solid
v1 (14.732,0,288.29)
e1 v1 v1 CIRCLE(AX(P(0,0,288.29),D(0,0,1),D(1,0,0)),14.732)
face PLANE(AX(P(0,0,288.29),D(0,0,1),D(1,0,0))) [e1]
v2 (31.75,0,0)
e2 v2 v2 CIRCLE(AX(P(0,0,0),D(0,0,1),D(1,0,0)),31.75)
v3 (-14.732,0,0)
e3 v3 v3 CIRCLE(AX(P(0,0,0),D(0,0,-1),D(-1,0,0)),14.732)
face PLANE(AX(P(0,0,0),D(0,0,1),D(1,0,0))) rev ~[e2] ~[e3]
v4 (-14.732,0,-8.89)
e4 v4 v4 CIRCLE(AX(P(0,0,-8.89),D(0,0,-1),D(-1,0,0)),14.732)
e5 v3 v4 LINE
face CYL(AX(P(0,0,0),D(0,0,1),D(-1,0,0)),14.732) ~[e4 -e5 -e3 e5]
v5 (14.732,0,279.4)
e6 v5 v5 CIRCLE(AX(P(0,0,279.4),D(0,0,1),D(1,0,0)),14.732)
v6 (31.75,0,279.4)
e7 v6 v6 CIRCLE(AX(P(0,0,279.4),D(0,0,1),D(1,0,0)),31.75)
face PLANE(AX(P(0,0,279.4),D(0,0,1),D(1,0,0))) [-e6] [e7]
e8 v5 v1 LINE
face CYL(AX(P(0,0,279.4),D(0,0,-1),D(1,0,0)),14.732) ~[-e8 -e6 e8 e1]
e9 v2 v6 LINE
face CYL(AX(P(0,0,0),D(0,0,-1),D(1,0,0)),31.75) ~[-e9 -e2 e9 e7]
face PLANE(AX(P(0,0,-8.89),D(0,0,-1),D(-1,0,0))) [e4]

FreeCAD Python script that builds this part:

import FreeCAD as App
import Part
import Sketcher

V = App.Vector
Q = App.Units.Quantity

doc = App.newDocument("Part")
params = doc.addObject("Spreadsheet::Sheet", "Params")
for row, (alias, value) in enumerate([
    ("sketch1_diameter", "2.5 in"),
    ("pad1_length", "11 in"),
    ("sketch2_diameter", "1.16 in"),
    ("pad2_length", "0.35 in"),
    ("sketch3_diameter", "1.16 in"),
    ("pad3_length", "0.35 in"),
], start=1):
    params.set(f"A{row}", alias)
    params.set(f"B{row}", "=" + value)
    params.setAlias(f"B{row}", alias)

body = doc.addObject("PartDesign::Body", "Body")

sketch1 = body.newObject("Sketcher::SketchObject", "Sketch")
sketch1.AttachmentSupport = (doc.getObject("XY_Plane"), [""])
sketch1.MapMode = "FlatFace"
sketch1.addGeometry(Part.Circle(V(0, 0, 0), V(0, 0, 1), 31.75), False)
sketch1.addConstraint([
    Sketcher.Constraint("Coincident", 0, 3, -1, 1),
    Sketcher.Constraint("Diameter", 0, Q("2.5 in")),
])
sketch1.setExpression("Constraints[1]", "Params.sketch1_diameter")
pad1 = body.newObject("PartDesign::Pad", "Pad")
pad1.Profile = sketch1
pad1.setExpression("Length", "Params.pad1_length")

sketch2 = body.newObject("Sketcher::SketchObject", "Sketch001")
sketch2.AttachmentSupport = (doc.getObject("XY_Plane"), [""])
sketch2.MapMode = "FlatFace"
sketch2.AttachmentOffset = App.Placement(V(0, 0, 11 * 25.4), App.Rotation())
sketch2.addGeometry(Part.Circle(V(0, 0, 0), V(0, 0, 1), 14.732), False)
sketch2.addConstraint([
    Sketcher.Constraint("Coincident", 0, 3, -1, 1),
    Sketcher.Constraint("Diameter", 0, Q("1.16 in")),
])
sketch2.setExpression("Constraints[1]", "Params.sketch2_diameter")
pad2 = body.newObject("PartDesign::Pad", "Pad001")
pad2.Profile = sketch2
pad2.setExpression("Length", "Params.pad2_length")

sketch3 = body.newObject("Sketcher::SketchObject", "Sketch002")
sketch3.AttachmentSupport = (doc.getObject("XY_Plane"), [""])
sketch3.MapMode = "FlatFace"
sketch3.addGeometry(Part.Circle(V(0, 0, 0), V(0, 0, 1), 14.732), False)
sketch3.addConstraint([
    Sketcher.Constraint("Coincident", 0, 3, -1, 1),
    Sketcher.Constraint("Diameter", 0, Q("1.16 in")),
])
sketch3.setExpression("Constraints[1]", "Params.sketch3_diameter")
pad3 = body.newObject("PartDesign::Pad", "Pad002")
pad3.Profile = sketch3
pad3.setExpression("Length", "Params.pad3_length")
pad3.Reversed = True

doc.recompute()
